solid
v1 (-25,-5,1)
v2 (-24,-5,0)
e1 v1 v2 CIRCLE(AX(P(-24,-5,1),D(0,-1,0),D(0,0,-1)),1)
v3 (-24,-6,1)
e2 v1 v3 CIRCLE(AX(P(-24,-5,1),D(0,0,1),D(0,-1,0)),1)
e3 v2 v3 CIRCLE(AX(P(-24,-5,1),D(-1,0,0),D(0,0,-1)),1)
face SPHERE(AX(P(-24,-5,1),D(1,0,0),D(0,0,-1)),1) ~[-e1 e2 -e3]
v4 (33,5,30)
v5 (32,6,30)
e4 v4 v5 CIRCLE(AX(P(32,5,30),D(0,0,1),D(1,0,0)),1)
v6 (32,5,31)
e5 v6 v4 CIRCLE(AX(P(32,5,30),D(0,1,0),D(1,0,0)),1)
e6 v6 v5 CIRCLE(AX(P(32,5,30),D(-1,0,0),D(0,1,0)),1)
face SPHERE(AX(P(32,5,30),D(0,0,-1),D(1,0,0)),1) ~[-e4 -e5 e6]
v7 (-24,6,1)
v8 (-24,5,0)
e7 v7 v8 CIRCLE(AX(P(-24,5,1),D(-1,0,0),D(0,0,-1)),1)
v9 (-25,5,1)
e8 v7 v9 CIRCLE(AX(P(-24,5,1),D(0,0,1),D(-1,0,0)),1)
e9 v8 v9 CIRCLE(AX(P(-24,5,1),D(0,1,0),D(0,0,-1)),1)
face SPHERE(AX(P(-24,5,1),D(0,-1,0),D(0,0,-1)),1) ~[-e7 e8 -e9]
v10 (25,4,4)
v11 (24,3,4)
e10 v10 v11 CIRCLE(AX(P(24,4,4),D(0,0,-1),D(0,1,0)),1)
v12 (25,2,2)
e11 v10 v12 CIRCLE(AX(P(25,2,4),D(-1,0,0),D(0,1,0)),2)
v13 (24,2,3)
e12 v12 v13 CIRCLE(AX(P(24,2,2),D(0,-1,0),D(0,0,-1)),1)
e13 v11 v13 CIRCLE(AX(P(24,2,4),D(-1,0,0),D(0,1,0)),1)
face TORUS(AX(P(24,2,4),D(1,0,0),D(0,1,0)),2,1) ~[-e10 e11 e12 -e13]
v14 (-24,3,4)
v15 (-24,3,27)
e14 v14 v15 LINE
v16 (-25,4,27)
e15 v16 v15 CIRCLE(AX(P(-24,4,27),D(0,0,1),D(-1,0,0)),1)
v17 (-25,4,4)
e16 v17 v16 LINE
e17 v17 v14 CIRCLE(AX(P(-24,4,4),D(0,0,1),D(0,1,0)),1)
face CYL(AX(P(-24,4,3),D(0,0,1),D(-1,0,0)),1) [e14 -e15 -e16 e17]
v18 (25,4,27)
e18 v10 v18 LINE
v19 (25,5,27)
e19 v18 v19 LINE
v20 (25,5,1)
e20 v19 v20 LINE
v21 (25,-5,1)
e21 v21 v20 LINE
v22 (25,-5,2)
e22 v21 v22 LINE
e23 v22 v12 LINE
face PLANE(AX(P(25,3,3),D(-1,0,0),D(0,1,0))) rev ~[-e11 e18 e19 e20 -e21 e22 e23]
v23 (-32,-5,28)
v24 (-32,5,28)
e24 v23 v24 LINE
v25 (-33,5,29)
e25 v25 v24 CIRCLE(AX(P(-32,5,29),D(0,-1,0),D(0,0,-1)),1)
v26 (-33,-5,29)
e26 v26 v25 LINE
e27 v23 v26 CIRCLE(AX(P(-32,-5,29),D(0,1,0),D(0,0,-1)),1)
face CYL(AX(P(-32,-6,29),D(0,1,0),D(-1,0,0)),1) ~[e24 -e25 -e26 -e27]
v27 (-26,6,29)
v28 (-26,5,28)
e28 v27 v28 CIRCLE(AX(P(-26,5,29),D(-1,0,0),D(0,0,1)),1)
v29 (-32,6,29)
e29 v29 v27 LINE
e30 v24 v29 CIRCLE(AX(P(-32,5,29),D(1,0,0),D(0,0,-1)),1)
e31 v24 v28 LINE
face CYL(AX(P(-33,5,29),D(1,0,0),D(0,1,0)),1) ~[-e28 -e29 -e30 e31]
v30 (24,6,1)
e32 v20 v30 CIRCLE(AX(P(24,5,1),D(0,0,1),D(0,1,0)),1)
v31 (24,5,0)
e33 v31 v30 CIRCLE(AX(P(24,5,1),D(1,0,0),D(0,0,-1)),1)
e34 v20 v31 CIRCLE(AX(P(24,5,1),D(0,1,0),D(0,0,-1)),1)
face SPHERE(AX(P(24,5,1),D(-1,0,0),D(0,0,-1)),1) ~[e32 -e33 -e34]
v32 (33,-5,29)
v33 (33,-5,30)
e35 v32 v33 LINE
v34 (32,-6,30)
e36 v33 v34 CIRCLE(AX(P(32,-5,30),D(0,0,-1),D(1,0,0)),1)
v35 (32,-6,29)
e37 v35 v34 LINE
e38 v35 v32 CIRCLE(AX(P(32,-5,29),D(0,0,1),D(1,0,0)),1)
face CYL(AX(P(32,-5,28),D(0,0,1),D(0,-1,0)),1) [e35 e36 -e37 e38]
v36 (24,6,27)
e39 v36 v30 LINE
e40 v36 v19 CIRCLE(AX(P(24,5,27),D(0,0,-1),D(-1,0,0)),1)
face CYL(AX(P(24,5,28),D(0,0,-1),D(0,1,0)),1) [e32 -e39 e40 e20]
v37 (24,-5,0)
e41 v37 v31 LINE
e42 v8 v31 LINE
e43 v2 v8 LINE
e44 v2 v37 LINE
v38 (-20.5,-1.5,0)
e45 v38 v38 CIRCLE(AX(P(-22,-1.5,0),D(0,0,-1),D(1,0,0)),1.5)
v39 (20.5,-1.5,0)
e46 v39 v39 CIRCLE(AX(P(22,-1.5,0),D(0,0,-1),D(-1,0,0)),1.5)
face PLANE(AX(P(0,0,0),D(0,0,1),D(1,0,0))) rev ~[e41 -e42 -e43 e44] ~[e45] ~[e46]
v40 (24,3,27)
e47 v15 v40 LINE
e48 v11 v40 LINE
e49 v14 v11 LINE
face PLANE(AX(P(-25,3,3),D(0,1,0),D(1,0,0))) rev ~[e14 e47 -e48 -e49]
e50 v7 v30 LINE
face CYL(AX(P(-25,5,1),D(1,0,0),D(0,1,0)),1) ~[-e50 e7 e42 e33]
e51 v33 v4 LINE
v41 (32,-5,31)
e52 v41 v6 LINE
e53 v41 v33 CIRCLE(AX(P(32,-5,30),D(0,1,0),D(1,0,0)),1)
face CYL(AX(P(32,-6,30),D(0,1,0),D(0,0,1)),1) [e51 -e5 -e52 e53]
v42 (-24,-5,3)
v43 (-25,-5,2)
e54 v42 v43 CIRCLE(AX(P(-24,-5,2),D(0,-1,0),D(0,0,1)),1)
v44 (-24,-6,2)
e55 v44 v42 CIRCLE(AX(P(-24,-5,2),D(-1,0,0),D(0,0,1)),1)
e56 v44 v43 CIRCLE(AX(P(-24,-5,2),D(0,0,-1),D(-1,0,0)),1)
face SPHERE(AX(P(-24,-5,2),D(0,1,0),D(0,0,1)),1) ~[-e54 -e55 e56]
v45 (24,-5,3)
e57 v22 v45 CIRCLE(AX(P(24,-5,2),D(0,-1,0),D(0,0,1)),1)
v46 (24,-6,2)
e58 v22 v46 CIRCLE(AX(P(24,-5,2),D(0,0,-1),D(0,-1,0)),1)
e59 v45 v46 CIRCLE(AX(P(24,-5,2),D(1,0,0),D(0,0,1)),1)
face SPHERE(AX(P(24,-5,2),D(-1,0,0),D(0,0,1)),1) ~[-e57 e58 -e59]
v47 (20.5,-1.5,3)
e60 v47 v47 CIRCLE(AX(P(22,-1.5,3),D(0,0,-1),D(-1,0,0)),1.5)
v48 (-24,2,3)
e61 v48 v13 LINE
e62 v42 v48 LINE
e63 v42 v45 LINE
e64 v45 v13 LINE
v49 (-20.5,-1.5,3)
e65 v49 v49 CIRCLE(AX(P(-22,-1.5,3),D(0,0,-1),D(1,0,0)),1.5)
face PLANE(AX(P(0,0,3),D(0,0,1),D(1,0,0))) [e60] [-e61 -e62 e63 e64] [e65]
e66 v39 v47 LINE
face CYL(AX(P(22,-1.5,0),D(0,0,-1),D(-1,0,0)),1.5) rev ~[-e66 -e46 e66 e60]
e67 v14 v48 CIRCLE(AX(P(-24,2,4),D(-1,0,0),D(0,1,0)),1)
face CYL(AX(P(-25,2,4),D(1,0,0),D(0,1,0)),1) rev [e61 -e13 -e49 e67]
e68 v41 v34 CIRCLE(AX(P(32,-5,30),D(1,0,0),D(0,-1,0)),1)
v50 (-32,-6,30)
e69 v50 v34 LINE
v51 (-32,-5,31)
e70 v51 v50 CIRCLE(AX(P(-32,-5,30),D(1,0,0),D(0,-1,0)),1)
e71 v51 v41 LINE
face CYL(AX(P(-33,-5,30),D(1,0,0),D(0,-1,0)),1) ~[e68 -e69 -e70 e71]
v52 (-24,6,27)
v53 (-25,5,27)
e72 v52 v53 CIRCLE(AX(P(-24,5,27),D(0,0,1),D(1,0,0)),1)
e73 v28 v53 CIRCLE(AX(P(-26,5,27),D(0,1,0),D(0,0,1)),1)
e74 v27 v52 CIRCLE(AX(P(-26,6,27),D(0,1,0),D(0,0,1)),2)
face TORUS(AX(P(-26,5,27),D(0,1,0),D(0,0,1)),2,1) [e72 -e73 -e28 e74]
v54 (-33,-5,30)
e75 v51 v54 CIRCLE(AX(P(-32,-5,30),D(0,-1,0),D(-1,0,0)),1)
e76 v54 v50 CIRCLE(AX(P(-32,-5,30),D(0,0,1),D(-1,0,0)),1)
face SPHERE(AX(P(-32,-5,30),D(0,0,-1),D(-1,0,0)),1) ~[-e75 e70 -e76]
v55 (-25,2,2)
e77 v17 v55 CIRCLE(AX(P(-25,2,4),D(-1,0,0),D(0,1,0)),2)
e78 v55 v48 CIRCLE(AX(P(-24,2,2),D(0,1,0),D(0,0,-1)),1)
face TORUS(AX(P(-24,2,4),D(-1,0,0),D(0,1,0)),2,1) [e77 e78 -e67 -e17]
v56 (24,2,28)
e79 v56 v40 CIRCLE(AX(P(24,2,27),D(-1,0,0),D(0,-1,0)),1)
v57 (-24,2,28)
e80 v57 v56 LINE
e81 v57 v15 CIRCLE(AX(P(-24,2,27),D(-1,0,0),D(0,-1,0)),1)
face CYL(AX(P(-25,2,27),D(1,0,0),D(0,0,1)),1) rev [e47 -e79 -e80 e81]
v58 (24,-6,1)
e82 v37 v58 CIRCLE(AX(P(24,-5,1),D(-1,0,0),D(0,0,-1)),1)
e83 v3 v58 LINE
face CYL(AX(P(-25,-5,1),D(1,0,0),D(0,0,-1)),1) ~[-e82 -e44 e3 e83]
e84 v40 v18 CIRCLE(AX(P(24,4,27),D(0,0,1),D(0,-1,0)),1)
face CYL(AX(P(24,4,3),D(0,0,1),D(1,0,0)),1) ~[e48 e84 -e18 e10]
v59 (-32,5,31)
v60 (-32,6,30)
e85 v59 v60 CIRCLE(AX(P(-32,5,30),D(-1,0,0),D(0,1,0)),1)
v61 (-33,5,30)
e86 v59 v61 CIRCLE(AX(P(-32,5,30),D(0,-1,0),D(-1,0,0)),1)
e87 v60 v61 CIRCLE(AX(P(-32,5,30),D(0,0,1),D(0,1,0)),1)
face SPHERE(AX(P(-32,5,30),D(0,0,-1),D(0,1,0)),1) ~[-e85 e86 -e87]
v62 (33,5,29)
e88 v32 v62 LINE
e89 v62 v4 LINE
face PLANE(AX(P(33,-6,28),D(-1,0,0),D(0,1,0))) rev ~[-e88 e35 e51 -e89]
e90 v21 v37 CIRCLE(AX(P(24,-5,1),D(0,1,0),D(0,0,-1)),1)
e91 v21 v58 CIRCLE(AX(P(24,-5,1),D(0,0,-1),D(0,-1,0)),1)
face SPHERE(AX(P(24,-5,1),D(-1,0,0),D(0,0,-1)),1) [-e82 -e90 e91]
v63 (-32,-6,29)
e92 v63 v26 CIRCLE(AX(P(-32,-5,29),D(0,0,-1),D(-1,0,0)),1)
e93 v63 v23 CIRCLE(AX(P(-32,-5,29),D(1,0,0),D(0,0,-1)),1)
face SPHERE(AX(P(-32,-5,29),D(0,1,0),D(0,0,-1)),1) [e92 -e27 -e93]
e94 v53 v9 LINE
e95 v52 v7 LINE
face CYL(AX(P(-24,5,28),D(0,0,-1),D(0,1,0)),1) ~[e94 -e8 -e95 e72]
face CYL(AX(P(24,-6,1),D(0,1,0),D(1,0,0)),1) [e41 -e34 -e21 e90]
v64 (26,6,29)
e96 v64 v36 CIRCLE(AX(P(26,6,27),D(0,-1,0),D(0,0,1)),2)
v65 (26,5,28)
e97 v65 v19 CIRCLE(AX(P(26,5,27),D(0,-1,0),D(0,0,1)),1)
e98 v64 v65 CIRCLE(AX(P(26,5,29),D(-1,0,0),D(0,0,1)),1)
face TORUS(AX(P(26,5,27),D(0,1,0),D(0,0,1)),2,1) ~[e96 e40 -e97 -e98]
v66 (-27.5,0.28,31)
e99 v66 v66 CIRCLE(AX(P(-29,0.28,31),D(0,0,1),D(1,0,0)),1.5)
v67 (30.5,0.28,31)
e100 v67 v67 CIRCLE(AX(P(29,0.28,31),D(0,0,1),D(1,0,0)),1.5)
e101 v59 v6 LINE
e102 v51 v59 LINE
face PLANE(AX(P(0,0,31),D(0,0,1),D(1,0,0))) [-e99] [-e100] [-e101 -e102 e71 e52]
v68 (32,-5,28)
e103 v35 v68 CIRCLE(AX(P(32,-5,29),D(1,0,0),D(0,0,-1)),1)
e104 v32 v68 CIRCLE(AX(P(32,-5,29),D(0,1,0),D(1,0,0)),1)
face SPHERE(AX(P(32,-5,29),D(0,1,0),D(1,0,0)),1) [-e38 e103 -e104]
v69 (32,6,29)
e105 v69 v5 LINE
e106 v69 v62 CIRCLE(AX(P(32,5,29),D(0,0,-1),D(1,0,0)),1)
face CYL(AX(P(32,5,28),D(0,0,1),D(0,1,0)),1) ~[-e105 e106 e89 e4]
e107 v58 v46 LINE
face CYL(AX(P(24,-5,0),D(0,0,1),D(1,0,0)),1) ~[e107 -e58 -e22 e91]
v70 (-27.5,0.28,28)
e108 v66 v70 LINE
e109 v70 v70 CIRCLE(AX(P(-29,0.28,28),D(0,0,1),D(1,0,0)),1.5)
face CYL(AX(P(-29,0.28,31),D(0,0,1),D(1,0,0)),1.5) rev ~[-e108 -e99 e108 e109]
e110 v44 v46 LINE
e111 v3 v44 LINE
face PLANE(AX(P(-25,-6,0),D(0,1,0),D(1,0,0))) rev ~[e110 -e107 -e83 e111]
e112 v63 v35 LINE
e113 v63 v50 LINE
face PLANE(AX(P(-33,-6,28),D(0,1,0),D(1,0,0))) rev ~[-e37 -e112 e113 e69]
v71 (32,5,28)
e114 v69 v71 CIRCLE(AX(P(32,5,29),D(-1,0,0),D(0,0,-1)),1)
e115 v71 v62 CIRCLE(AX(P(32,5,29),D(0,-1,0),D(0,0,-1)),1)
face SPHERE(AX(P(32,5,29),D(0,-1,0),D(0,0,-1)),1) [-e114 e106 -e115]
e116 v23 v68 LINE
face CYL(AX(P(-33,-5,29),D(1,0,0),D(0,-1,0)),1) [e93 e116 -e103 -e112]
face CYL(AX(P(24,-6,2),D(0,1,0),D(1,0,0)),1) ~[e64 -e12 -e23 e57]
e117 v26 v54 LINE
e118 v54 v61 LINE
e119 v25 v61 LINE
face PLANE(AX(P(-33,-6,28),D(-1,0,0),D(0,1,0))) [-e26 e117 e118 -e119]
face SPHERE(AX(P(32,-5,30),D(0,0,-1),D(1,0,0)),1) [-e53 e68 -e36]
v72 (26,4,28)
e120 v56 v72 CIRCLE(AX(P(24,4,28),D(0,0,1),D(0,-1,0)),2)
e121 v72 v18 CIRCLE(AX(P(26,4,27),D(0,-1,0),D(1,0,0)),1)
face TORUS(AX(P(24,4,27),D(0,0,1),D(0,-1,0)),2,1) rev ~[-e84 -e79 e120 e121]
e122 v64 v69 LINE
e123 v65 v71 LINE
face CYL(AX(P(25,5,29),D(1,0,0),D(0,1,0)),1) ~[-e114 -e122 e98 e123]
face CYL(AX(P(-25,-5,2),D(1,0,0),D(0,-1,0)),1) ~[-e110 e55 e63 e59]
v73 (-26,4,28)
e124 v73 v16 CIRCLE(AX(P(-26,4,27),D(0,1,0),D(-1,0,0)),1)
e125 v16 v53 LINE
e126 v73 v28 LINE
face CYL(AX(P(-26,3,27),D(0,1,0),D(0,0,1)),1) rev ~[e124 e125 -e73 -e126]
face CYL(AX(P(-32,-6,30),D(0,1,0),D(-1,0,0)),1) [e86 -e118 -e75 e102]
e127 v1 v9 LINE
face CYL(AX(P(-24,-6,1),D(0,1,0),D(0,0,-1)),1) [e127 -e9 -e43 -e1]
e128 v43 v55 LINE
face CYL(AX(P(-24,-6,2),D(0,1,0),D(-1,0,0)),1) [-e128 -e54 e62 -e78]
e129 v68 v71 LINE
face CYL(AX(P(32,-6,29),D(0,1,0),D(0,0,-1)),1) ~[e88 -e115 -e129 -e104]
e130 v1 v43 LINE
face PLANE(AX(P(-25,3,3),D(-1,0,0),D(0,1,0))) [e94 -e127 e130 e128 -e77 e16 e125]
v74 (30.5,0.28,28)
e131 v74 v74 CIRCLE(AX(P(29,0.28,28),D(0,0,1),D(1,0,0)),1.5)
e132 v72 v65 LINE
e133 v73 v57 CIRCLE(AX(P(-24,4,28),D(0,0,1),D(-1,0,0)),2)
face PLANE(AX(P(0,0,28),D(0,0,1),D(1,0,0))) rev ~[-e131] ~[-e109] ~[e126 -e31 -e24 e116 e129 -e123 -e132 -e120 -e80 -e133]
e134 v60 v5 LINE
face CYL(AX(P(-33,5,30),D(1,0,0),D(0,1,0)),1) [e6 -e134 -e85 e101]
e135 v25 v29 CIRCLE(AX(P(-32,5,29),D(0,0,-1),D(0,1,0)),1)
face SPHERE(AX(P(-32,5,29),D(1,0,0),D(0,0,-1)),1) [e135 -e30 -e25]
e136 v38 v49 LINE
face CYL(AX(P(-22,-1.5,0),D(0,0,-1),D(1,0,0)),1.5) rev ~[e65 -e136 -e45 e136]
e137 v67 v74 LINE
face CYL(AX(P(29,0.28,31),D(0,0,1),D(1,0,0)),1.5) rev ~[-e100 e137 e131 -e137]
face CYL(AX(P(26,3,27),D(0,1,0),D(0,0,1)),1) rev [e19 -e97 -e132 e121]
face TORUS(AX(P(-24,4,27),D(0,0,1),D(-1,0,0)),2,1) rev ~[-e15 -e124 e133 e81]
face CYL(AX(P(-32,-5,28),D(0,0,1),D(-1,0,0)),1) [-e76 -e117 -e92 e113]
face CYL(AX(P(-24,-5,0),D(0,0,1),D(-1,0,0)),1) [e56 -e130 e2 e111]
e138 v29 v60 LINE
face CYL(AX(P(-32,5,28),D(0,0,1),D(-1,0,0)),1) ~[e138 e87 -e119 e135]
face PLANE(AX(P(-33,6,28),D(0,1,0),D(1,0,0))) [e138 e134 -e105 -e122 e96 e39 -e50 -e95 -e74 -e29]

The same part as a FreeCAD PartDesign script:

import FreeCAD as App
import Part
import Sketcher
Q = App.Units.Quantity


def edges_at(feature, points):
    """Names of the edges that pass closest to the given points."""
    edges = feature.Shape.Edges
    near = lambda p: min(range(len(edges)), key=lambda i: edges[i].distToShape(Part.Vertex(*p))[0])
    return sorted({f"Edge{near(p) + 1}" for p in points})

doc = App.newDocument("Part")
body = doc.addObject("PartDesign::Body", "Body")

sketch1 = doc.addObject("Sketcher::SketchObject", "Sketch")
body.addObject(sketch1)
sketch1.AttachmentSupport = (doc.XY_Plane, [""])
sketch1.MapMode = "FlatFace"
sketch1.addGeometry([
    Part.LineSegment(App.Vector(-25, 6, 0), App.Vector(-25, -6, 0)),
    Part.LineSegment(App.Vector(-25, -6, 0), App.Vector(25, -6, 0)),
    Part.LineSegment(App.Vector(25, -6, 0), App.Vector(25, 6, 0)),
    Part.LineSegment(App.Vector(25, 6, 0), App.Vector(-25, 6, 0)),
], False)
sketch1.addConstraint([
    Sketcher.Constraint("Coincident", 0, 2, 1, 1),
    Sketcher.Constraint("Coincident", 1, 2, 2, 1),
    Sketcher.Constraint("Coincident", 2, 2, 3, 1),
    Sketcher.Constraint("Coincident", 3, 2, 0, 1),
    Sketcher.Constraint("Vertical", 0),
    Sketcher.Constraint("Horizontal", 1),
    Sketcher.Constraint("Vertical", 2),
    Sketcher.Constraint("Horizontal", 3),
    Sketcher.Constraint("Symmetric", 0, 2, 2, 2, -1, 1),
    Sketcher.Constraint("DistanceX", 1, 1, 1, 2, Q("50 mm")),
    Sketcher.Constraint("DistanceY", 0, 2, 0, 1, Q("12 mm")),
])
pad1 = doc.addObject("PartDesign::Pad", "Pad")
body.addObject(pad1)
pad1.Profile = sketch1
pad1.Length = 3

sketch2 = doc.addObject("Sketcher::SketchObject", "Sketch001")
body.addObject(sketch2)
sketch2.AttachmentSupport = (doc.XY_Plane, [""])
sketch2.MapMode = "FlatFace"
sketch2.AttachmentOffset = App.Placement(App.Vector(0, 0, 3), App.Rotation())
sketch2.addGeometry([
    Part.LineSegment(App.Vector(-25, 6, 0), App.Vector(-25, 3, 0)),
    Part.LineSegment(App.Vector(-25, 3, 0), App.Vector(25, 3, 0)),
    Part.LineSegment(App.Vector(25, 3, 0), App.Vector(25, 6, 0)),
    Part.LineSegment(App.Vector(25, 6, 0), App.Vector(-25, 6, 0)),
], False)
sketch2.addConstraint([
    Sketcher.Constraint("Coincident", 0, 2, 1, 1),
    Sketcher.Constraint("Coincident", 1, 2, 2, 1),
    Sketcher.Constraint("Coincident", 2, 2, 3, 1),
    Sketcher.Constraint("Coincident", 3, 2, 0, 1),
    Sketcher.Constraint("Vertical", 0),
    Sketcher.Constraint("Horizontal", 1),
    Sketcher.Constraint("Vertical", 2),
    Sketcher.Constraint("Horizontal", 3),
    Sketcher.Constraint("DistanceX", 1, 1, 1, 2, Q("50 mm")),
    Sketcher.Constraint("DistanceY", 0, 2, 0, 1, Q("3 mm")),
    Sketcher.Constraint("DistanceX", 0, 2, -1, 1, Q("25 mm")),
    Sketcher.Constraint("DistanceY", -1, 1, 0, 2, Q("3 mm")),
])
pad2 = doc.addObject("PartDesign::Pad", "Pad001")
body.addObject(pad2)
pad2.Profile = sketch2
pad2.Length = 25

sketch3 = doc.addObject("Sketcher::SketchObject", "Sketch002")
body.addObject(sketch3)
sketch3.AttachmentSupport = (doc.XY_Plane, [""])
sketch3.MapMode = "FlatFace"
sketch3.AttachmentOffset = App.Placement(App.Vector(0, 0, 28), App.Rotation())
sketch3.addGeometry([
    Part.LineSegment(App.Vector(-33, 6, 0), App.Vector(-33, -6, 0)),
    Part.LineSegment(App.Vector(-33, -6, 0), App.Vector(33, -6, 0)),
    Part.LineSegment(App.Vector(33, -6, 0), App.Vector(33, 6, 0)),
    Part.LineSegment(App.Vector(33, 6, 0), App.Vector(-33, 6, 0)),
], False)
sketch3.addConstraint([
    Sketcher.Constraint("Coincident", 0, 2, 1, 1),
    Sketcher.Constraint("Coincident", 1, 2, 2, 1),
    Sketcher.Constraint("Coincident", 2, 2, 3, 1),
    Sketcher.Constraint("Coincident", 3, 2, 0, 1),
    Sketcher.Constraint("Vertical", 0),
    Sketcher.Constraint("Horizontal", 1),
    Sketcher.Constraint("Vertical", 2),
    Sketcher.Constraint("Horizontal", 3),
    Sketcher.Constraint("Symmetric", 0, 2, 2, 2, -1, 1),
    Sketcher.Constraint("DistanceX", 1, 1, 1, 2, Q("66 mm")),
    Sketcher.Constraint("DistanceY", 0, 2, 0, 1, Q("12 mm")),
])
pad3 = doc.addObject("PartDesign::Pad", "Pad002")
body.addObject(pad3)
pad3.Profile = sketch3
pad3.Length = 3

sketch4 = doc.addObject("Sketcher::SketchObject", "Sketch003")
body.addObject(sketch4)
sketch4.AttachmentSupport = (doc.XY_Plane, [""])
sketch4.MapMode = "FlatFace"
sketch4.AttachmentOffset = App.Placement(App.Vector(0, 0, 31), App.Rotation())
sketch4.addGeometry([
    Part.Circle(App.Vector(29, 0.28, 0), App.Vector(0, 0, 1), 1.5),
    Part.Circle(App.Vector(-29, 0.28, 0), App.Vector(0, 0, 1), 1.5),
], False)
sketch4.addConstraint([
    Sketcher.Constraint("Equal", 0, 1),
    Sketcher.Constraint("Symmetric", 0, 3, 1, 3, -2),
    Sketcher.Constraint("Diameter", 0, Q("3 mm")),
    Sketcher.Constraint("DistanceX", -1, 1, 0, 3, Q("29 mm")),
    Sketcher.Constraint("DistanceY", -1, 1, 0, 3, Q("0.28 mm")),
])
pocket1 = doc.addObject("PartDesign::Pocket", "Pocket")
body.addObject(pocket1)
pocket1.Profile = sketch4
pocket1.Length = 6

sketch5 = doc.addObject("Sketcher::SketchObject", "Sketch004")
body.addObject(sketch5)
sketch5.AttachmentSupport = (doc.XY_Plane, [""])
sketch5.MapMode = "FlatFace"
sketch5.addGeometry([
    Part.Circle(App.Vector(22, -1.5, 0), App.Vector(0, 0, 1), 1.5),
    Part.Circle(App.Vector(-22, -1.5, 0), App.Vector(0, 0, 1), 1.5),
], False)
sketch5.addConstraint([
    Sketcher.Constraint("Equal", 0, 1),
    Sketcher.Constraint("Symmetric", 0, 3, 1, 3, -2),
    Sketcher.Constraint("Diameter", 0, Q("3 mm")),
    Sketcher.Constraint("DistanceX", -1, 1, 0, 3, Q("22 mm")),
    Sketcher.Constraint("DistanceY", 0, 3, -1, 1, Q("1.5 mm")),
])
pocket2 = doc.addObject("PartDesign::Pocket", "Pocket001")
body.addObject(pocket2)
pocket2.Profile = sketch5
pocket2.Length = 6
pocket2.Reversed = True
doc.recompute()

fillet = doc.addObject("PartDesign::Fillet", "Fillet")
body.addObject(fillet)
fillet.Base = (pocket2, edges_at(pocket2, [
    (-25, -1.5, 3),
    (0, -6, 3),
    (0, 3, 3),
    (-25, 3, 15.5),
    (25, 3, 15.5),
    (-25, 4.5, 28),
    (0, 3, 28),
    (25, 4.5, 28),
    (33, 0, 28),
    (33, -6, 29.5),
    (29, 6, 28),
    (-29, 6, 28),
    (33, 6, 29.5),
    (-33, 0, 28),
    (-33, 6, 29.5),
    (0, -6, 28),
    (-33, -6, 29.5),
    (33, 0, 31),
    (0, 6, 31),
    (-33, 0, 31),
    (0, -6, 31),
    (25, -1.5, 3),
    (0, -6, 0),
    (-25, 0, 0),
    (0, 6, 0),
    (25, 0, 0),
    (25, -6, 1.5),
    (-25, -6, 1.5),
    (-25, 6, 14),
    (25, 6, 14),
]))
fillet.Radius = 1

doc.recompute()
